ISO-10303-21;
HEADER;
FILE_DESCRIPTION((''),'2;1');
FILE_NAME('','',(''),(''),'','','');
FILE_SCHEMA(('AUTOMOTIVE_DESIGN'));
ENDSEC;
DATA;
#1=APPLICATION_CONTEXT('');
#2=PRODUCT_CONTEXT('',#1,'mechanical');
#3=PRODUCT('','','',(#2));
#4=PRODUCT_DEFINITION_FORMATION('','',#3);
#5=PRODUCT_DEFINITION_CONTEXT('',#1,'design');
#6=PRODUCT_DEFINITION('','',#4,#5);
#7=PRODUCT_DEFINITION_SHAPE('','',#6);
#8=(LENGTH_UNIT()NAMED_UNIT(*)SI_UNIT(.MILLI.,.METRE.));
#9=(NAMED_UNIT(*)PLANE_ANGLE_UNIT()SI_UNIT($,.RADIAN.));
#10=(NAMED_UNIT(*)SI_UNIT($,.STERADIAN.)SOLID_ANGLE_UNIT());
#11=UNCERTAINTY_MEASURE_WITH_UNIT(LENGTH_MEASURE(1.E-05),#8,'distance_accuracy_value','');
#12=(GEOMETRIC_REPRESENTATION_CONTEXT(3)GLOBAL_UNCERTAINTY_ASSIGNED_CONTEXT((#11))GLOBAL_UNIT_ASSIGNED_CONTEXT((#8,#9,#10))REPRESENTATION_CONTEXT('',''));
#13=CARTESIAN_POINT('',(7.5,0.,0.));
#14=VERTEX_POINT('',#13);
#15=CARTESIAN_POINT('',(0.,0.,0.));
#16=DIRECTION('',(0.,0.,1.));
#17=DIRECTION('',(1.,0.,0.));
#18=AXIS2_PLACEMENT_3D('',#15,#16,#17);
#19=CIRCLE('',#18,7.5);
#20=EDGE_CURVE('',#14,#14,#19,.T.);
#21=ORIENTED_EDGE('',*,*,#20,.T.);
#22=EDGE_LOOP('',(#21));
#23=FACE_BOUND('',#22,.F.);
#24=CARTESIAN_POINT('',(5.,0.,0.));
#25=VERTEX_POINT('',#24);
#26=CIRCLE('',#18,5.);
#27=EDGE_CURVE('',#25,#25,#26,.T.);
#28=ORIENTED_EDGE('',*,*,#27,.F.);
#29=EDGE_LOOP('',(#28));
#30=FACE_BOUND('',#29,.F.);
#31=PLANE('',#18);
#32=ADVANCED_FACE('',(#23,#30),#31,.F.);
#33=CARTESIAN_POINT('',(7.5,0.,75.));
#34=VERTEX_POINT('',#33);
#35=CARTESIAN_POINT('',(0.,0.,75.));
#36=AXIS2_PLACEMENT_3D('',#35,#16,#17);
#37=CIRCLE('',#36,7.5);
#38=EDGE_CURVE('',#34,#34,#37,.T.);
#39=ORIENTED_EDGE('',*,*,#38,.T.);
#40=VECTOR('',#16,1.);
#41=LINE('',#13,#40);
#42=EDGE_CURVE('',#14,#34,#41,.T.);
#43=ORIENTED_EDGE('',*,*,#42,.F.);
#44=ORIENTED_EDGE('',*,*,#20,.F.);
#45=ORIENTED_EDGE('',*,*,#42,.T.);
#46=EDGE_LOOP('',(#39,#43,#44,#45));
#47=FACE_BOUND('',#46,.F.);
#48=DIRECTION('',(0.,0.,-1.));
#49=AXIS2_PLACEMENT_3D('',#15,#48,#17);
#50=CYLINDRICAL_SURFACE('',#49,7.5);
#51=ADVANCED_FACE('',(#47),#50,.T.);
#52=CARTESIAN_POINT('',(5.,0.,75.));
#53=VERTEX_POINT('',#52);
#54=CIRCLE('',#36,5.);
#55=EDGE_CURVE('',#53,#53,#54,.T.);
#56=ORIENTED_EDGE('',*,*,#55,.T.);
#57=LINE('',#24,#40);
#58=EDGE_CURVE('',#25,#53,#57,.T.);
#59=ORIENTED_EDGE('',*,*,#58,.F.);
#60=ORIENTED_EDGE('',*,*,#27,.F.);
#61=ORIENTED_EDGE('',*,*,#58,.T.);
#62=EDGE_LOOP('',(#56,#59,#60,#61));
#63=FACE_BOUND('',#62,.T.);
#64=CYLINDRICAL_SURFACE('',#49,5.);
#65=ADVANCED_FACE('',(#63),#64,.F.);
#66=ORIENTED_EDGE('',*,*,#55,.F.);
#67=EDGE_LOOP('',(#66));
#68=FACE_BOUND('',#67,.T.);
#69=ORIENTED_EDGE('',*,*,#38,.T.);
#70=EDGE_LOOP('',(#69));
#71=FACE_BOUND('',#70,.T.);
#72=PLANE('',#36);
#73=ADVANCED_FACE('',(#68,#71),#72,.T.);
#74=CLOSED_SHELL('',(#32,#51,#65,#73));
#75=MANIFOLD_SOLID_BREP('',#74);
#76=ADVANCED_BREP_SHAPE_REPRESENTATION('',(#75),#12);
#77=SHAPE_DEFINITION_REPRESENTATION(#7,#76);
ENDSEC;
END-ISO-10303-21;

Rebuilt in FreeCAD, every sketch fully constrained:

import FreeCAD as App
import Part
import Sketcher
Q = App.Units.Quantity

doc = App.newDocument("Part")
body = doc.addObject("PartDesign::Body", "Body")

# Sketch on XY plane
sketch1 = doc.addObject("Sketcher::SketchObject", "Sketch")
body.addObject(sketch1)
sketch1.AttachmentSupport = (doc.XY_Plane, [""])
sketch1.MapMode = "FlatFace"
sketch1.addGeometry([
    Part.Circle(App.Vector(0, 0, 0), App.Vector(0, 0, 1), 8),
    Part.Circle(App.Vector(0, 0, 0), App.Vector(0, 0, 1), 5),
], False)
sketch1.addConstraint([
    Sketcher.Constraint("Coincident", 0, 3, -1, 1),
    Sketcher.Constraint("Coincident", 1, 3, -1, 1),
    Sketcher.Constraint("Diameter", 0, Q("15 mm")),
    Sketcher.Constraint("Diameter", 1, Q("10 mm")),
])
pad1 = doc.addObject("PartDesign::Pad", "Pad")
body.addObject(pad1)
pad1.Profile = sketch1
pad1.Length = 75

doc.recompute()
